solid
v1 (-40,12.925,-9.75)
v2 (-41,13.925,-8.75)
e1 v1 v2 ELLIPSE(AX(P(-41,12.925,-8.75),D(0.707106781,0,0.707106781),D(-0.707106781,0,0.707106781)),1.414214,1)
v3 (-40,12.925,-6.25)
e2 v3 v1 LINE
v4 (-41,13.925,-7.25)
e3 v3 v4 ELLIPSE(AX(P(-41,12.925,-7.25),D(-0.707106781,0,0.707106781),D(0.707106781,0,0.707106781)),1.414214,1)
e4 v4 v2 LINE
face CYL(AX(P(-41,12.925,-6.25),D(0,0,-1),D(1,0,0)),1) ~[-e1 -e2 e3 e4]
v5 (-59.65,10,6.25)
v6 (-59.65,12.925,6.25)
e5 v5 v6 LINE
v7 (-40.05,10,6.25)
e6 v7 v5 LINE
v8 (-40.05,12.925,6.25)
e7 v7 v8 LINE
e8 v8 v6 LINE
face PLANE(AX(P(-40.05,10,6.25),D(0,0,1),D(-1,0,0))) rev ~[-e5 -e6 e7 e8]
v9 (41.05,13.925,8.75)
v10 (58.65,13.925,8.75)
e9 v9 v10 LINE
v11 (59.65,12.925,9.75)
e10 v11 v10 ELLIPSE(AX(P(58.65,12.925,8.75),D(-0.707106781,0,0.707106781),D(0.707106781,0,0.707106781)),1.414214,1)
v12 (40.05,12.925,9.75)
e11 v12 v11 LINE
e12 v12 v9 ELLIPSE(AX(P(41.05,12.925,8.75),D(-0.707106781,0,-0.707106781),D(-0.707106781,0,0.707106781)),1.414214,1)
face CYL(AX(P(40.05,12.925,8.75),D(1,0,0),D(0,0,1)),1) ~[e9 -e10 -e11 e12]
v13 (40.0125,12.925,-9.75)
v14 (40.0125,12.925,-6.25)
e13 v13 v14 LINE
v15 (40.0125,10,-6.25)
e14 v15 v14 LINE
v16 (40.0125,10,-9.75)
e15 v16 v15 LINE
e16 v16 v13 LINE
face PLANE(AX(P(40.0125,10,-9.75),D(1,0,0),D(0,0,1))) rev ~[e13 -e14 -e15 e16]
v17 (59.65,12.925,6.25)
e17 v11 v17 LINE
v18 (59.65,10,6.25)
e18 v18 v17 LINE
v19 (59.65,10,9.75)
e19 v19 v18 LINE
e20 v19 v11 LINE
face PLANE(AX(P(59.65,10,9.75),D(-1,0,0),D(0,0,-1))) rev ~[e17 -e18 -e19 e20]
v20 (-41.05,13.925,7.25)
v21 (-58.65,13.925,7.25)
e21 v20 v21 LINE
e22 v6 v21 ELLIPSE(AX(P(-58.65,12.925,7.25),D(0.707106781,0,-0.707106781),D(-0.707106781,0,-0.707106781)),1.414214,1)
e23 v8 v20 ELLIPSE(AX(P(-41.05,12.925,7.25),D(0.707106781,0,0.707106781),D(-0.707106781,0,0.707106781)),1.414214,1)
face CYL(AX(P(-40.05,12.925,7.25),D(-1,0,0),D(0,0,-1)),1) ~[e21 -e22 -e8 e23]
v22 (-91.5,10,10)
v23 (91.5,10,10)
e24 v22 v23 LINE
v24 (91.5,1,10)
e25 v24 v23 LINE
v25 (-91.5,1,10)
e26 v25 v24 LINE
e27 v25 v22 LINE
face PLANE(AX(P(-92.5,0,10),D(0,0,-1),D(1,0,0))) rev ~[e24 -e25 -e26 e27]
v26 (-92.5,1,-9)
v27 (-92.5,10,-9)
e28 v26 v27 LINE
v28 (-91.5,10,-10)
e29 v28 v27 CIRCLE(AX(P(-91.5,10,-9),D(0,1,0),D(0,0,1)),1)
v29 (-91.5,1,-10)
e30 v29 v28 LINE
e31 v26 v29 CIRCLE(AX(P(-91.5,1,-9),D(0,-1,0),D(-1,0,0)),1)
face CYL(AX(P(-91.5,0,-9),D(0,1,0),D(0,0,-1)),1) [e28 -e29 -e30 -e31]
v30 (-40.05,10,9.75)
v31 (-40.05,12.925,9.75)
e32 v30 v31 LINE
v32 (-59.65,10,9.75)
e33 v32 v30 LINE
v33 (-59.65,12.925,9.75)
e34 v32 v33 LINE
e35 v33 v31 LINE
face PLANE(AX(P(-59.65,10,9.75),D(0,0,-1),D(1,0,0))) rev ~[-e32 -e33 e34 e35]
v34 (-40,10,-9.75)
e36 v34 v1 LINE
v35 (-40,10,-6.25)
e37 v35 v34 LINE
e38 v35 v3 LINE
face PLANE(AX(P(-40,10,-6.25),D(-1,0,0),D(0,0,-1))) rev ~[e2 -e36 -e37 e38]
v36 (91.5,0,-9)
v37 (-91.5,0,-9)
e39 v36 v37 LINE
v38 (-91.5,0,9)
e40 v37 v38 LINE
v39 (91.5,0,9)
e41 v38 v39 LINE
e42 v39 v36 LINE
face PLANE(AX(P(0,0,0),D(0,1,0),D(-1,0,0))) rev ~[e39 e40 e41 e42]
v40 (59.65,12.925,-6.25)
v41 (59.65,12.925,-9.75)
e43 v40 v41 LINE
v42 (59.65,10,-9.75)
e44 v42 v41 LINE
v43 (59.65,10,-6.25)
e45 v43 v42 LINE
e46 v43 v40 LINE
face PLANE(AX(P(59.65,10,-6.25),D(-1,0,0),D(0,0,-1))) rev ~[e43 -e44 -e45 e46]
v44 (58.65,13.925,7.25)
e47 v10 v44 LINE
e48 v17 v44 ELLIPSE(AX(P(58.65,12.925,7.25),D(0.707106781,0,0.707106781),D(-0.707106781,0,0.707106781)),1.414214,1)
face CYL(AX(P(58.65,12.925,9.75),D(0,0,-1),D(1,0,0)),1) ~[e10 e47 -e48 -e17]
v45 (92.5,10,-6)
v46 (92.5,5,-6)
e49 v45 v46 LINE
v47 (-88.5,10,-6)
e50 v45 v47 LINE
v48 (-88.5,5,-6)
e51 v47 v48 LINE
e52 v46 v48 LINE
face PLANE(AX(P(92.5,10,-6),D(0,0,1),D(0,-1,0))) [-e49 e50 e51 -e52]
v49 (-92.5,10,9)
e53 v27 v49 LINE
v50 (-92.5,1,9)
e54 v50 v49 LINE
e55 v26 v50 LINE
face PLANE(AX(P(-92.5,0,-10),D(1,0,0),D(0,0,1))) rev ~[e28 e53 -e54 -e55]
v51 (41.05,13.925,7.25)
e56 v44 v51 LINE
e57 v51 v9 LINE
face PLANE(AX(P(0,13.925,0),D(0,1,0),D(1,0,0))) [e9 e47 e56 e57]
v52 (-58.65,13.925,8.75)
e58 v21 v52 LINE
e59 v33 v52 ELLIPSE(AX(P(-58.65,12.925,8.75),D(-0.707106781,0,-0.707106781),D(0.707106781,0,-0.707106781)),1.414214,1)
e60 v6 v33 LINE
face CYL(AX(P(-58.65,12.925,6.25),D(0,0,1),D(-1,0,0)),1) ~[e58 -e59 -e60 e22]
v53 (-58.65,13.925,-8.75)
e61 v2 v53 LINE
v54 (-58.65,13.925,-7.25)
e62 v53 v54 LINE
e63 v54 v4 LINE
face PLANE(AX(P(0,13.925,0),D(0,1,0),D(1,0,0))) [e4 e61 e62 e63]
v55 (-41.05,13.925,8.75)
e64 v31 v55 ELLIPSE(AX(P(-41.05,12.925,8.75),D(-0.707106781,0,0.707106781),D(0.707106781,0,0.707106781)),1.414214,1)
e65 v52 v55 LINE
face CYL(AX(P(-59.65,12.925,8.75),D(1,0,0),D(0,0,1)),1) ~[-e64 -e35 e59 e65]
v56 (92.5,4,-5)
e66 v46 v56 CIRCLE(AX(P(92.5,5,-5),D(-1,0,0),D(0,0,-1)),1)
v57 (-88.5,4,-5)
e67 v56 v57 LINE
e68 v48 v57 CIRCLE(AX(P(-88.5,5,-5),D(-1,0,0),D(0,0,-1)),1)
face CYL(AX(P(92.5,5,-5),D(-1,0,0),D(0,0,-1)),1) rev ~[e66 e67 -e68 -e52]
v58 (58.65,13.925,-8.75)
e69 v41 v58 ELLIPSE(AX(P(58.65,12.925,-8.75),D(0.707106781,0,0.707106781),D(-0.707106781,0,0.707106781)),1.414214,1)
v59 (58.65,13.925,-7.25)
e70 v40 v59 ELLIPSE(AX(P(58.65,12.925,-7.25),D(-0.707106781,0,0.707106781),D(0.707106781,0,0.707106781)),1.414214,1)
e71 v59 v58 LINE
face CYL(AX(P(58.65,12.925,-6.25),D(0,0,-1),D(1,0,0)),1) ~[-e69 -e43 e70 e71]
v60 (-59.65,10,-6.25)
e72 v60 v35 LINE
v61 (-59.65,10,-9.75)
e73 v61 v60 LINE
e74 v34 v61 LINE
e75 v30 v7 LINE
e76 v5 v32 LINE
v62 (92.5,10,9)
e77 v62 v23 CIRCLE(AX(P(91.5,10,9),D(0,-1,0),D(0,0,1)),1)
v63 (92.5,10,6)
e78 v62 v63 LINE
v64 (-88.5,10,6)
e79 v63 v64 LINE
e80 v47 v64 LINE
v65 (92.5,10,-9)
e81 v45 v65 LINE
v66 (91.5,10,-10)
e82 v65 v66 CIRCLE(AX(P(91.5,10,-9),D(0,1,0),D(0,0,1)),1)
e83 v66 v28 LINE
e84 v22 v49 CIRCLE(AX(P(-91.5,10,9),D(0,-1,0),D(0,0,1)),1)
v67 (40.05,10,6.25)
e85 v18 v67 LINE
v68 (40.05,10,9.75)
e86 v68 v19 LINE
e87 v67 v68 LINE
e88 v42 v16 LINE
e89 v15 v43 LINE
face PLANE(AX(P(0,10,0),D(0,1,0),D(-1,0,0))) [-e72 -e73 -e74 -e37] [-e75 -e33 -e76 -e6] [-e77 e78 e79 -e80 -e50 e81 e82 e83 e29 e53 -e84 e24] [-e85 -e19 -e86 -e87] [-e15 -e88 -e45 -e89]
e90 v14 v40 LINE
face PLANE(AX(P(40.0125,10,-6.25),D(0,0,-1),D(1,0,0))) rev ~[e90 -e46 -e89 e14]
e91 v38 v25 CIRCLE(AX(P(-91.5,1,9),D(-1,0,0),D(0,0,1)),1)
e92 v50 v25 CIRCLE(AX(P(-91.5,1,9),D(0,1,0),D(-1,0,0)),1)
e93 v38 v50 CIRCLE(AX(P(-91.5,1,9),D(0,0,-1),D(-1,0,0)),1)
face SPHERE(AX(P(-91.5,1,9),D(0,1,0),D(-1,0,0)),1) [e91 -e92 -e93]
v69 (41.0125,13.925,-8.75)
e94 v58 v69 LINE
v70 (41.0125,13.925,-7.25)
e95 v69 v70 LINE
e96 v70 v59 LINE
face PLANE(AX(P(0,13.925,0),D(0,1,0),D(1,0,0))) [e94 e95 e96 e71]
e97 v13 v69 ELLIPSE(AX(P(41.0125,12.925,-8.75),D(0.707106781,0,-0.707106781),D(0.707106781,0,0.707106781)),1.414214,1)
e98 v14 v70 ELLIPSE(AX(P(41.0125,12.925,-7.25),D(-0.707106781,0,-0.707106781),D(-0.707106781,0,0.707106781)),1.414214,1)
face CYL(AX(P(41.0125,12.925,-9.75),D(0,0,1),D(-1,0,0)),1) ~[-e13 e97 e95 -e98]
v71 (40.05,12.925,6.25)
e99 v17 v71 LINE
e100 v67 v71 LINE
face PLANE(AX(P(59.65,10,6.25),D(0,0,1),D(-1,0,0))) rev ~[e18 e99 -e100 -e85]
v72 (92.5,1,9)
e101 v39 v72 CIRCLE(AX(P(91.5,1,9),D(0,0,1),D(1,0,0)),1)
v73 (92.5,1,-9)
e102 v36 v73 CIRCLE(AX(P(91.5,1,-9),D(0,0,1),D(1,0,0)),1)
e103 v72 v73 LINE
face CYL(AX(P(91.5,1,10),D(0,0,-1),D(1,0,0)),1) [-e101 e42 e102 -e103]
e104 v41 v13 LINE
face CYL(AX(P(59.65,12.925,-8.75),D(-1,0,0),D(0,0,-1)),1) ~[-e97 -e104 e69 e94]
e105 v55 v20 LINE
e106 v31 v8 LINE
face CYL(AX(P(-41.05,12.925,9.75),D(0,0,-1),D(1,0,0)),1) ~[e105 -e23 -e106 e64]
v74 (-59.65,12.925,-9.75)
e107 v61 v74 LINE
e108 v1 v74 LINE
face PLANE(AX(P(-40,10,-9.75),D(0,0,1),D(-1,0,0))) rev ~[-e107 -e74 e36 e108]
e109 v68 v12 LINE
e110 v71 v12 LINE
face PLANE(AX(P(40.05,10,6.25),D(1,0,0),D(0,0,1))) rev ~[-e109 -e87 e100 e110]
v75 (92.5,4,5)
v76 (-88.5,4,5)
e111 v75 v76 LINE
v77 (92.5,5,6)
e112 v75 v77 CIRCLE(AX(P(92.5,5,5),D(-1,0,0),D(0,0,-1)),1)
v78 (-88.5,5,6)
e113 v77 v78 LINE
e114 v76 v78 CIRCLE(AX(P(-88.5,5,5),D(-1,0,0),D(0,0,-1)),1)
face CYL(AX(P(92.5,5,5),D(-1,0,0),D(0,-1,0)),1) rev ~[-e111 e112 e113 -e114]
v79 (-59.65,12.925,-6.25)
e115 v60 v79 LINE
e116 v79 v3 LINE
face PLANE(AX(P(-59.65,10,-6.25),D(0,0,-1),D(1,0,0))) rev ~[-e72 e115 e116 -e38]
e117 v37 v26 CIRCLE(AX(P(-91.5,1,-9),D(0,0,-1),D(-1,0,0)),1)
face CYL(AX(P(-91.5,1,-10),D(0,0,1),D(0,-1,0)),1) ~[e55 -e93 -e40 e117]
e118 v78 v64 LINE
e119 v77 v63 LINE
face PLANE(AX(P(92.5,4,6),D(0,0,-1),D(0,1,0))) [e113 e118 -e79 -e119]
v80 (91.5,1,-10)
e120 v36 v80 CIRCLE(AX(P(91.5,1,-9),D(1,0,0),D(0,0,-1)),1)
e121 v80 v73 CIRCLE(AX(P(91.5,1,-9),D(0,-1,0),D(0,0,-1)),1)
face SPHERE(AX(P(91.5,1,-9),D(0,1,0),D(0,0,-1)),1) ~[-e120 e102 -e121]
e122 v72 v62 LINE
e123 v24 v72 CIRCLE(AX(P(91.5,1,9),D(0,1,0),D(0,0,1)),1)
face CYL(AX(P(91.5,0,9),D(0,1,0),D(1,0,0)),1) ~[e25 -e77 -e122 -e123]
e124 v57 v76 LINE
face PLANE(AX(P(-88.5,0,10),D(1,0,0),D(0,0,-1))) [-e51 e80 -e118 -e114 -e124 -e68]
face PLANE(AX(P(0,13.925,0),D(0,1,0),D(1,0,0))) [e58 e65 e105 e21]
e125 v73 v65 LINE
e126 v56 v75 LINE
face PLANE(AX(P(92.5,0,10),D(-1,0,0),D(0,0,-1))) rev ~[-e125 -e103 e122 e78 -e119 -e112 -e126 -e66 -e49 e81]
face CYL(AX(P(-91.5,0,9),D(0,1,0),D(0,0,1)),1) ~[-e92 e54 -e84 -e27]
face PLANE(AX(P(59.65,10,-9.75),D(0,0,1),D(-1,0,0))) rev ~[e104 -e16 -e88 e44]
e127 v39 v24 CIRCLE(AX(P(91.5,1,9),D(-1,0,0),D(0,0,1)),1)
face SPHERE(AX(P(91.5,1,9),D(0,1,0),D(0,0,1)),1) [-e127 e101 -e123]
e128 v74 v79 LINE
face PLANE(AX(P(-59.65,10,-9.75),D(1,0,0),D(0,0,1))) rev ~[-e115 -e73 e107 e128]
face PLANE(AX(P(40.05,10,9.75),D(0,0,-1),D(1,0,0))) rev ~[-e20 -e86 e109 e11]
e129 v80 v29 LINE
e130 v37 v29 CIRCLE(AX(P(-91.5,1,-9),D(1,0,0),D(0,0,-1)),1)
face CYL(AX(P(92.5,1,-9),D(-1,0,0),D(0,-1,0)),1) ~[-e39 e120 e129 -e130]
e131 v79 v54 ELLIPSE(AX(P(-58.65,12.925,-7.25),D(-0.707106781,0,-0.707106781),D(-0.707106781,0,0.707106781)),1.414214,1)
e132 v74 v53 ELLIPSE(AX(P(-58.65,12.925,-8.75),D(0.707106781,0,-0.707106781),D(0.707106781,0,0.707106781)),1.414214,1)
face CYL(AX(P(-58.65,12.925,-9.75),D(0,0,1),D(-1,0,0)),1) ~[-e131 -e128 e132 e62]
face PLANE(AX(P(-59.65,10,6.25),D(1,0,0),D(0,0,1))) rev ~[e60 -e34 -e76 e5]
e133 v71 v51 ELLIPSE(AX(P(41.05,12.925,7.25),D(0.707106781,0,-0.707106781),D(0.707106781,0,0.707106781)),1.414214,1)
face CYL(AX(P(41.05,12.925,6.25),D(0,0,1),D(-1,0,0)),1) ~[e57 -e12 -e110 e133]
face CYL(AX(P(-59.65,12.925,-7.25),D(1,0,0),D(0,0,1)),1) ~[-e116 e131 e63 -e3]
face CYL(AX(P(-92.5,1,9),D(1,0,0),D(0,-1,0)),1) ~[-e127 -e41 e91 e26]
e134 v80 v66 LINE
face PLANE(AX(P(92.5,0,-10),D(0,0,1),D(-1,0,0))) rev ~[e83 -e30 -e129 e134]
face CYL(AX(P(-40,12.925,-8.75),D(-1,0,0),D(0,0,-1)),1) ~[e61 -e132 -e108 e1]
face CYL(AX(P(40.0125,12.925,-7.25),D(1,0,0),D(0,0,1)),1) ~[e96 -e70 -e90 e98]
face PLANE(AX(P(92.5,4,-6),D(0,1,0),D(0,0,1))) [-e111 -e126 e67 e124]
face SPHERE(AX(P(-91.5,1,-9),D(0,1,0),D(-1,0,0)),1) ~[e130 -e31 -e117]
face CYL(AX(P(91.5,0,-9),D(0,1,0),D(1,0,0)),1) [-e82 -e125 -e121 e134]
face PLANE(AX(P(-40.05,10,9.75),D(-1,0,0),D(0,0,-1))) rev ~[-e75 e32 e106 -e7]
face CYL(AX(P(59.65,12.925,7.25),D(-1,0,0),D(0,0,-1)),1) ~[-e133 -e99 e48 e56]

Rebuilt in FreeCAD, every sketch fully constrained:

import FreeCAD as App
import Part
import Sketcher
from FreeCAD import Vector
Q = App.Units.Quantity


def edges_at(feature, points):
    """Names of the edges that pass closest to the given points."""
    edges = feature.Shape.Edges
    near = lambda p: min(range(len(edges)), key=lambda i: edges[i].distToShape(Part.Vertex(*p))[0])
    return sorted({f"Edge{near(p) + 1}" for p in points})

doc = App.newDocument("Part")
params = doc.addObject("Spreadsheet::Sheet", "Params")
for row, (alias, value) in enumerate([
    ("sketch1_width", "185 mm"),
    ("sketch1_height", "20 mm"),
    ("pad1_length", "10 mm"),
    ("sketch2_width", "6 mm"),
    ("sketch2_height", "12 mm"),
    ("pocket1_length", "181 mm"),
    ("sketch3_width", "19.6 mm"),
    ("sketch3_height", "3.5 mm"),
    ("sketch3_width2", "19.65 mm"),
    ("pad2_length", "3.925 mm"),
    ("fillet_radius", "1 mm"),
], start=1):
    params.set(f"A{row}", alias)
    params.set(f"B{row}", "=" + value)
    params.setAlias(f"B{row}", alias)

body = doc.addObject("PartDesign::Body", "Body")

sketch1 = body.newObject("Sketcher::SketchObject", "Sketch")
sketch1.AttachmentSupport = (doc.getObject("XZ_Plane"), [""])
sketch1.MapMode = "FlatFace"
sketch1.addGeometry([
    Part.LineSegment(Vector(92, 10, 0), Vector(92, -10, 0)),
    Part.LineSegment(Vector(92, -10, 0), Vector(-92, -10, 0)),
    Part.LineSegment(Vector(-92, -10, 0), Vector(-92, 10, 0)),
    Part.LineSegment(Vector(-92, 10, 0), Vector(92, 10, 0)),
], False)
sketch1.addConstraint([
    Sketcher.Constraint("Coincident", 0, 2, 1, 1),
    Sketcher.Constraint("Coincident", 1, 2, 2, 1),
    Sketcher.Constraint("Coincident", 2, 2, 3, 1),
    Sketcher.Constraint("Coincident", 3, 2, 0, 1),
    Sketcher.Constraint("Vertical", 0),
    Sketcher.Constraint("Horizontal", 1),
    Sketcher.Constraint("Vertical", 2),
    Sketcher.Constraint("Horizontal", 3),
    Sketcher.Constraint("Symmetric", 0, 2, 2, 2, -1, 1),
    Sketcher.Constraint("DistanceX", 1, 2, 1, 1, Q("185 mm")),
    Sketcher.Constraint("DistanceY", 0, 2, 0, 1, Q("20 mm")),
])
sketch1.setExpression("Constraints[9]", "Params.sketch1_width")
sketch1.setExpression("Constraints[10]", "Params.sketch1_height")
pad1 = body.newObject("PartDesign::Pad", "Pad")
pad1.Profile = sketch1
pad1.setExpression("Length", "Params.pad1_length")
pad1.Reversed = True

sketch2 = body.newObject("Sketcher::SketchObject", "Sketch001")
sketch2.AttachmentSupport = (doc.getObject("YZ_Plane"), [""])
sketch2.MapMode = "FlatFace"
sketch2.AttachmentOffset = App.Placement(Vector(0, 0, 92.5), App.Rotation())
sketch2.addGeometry([
    Part.LineSegment(Vector(4, -6, 0), Vector(10, -6, 0)),
    Part.LineSegment(Vector(10, -6, 0), Vector(10, 6, 0)),
    Part.LineSegment(Vector(10, 6, 0), Vector(4, 6, 0)),
    Part.LineSegment(Vector(4, 6, 0), Vector(4, -6, 0)),
], False)
sketch2.addConstraint([
    Sketcher.Constraint("Coincident", 0, 2, 1, 1),
    Sketcher.Constraint("Coincident", 1, 2, 2, 1),
    Sketcher.Constraint("Coincident", 2, 2, 3, 1),
    Sketcher.Constraint("Coincident", 3, 2, 0, 1),
    Sketcher.Constraint("Horizontal", 0),
    Sketcher.Constraint("Vertical", 1),
    Sketcher.Constraint("Horizontal", 2),
    Sketcher.Constraint("Vertical", 3),
    Sketcher.Constraint("DistanceX", -1, 1, 2, 2, Q("4 mm")),
    Sketcher.Constraint("DistanceX", 0, 1, 0, 2, Q("6 mm")),
    Sketcher.Constraint("DistanceY", 1, 1, 1, 2, Q("12 mm")),
    Sketcher.Constraint("DistanceY", 0, 2, -1, 1, Q("6 mm")),
])
sketch2.setExpression("Constraints[9]", "Params.sketch2_width")
sketch2.setExpression("Constraints[10]", "Params.sketch2_height")
pocket1 = body.newObject("PartDesign::Pocket", "Pocket")
pocket1.Profile = sketch2
pocket1.setExpression("Length", "Params.pocket1_length")

sketch3 = body.newObject("Sketcher::SketchObject", "Sketch002")
sketch3.AttachmentSupport = (doc.getObject("XZ_Plane"), [""])
sketch3.MapMode = "FlatFace"
sketch3.AttachmentOffset = App.Placement(Vector(0, 0, -10), App.Rotation())
sketch3.addGeometry([
    Part.LineSegment(Vector(-59.6, 6.2, 0), Vector(-59.6, 9.8, 0)),
    Part.LineSegment(Vector(-59.6, 9.8, 0), Vector(-40, 9.8, 0)),
    Part.LineSegment(Vector(-40, 9.8, 0), Vector(-40, 6.2, 0)),
    Part.LineSegment(Vector(-40, 6.2, 0), Vector(-59.6, 6.2, 0)),
    Part.LineSegment(Vector(-59.6, -9.8, 0), Vector(-59.6, -6.2, 0)),
    Part.LineSegment(Vector(-59.6, -6.2, 0), Vector(-40, -6.2, 0)),
    Part.LineSegment(Vector(-40, -6.2, 0), Vector(-40, -9.8, 0)),
    Part.LineSegment(Vector(-40, -9.8, 0), Vector(-59.6, -9.8, 0)),
    Part.LineSegment(Vector(40, 6.2, 0), Vector(40, 9.8, 0)),
    Part.LineSegment(Vector(40, 9.8, 0), Vector(59.6, 9.8, 0)),
    Part.LineSegment(Vector(59.6, 9.8, 0), Vector(59.6, 6.2, 0)),
    Part.LineSegment(Vector(59.6, 6.2, 0), Vector(40, 6.2, 0)),
    Part.LineSegment(Vector(40, -9.8, 0), Vector(40, -6.2, 0)),
    Part.LineSegment(Vector(40, -6.2, 0), Vector(59.6, -6.2, 0)),
    Part.LineSegment(Vector(59.6, -6.2, 0), Vector(59.6, -9.8, 0)),
    Part.LineSegment(Vector(59.6, -9.8, 0), Vector(40, -9.8, 0)),
], False)
sketch3.addConstraint([
    Sketcher.Constraint("Coincident", 0, 2, 1, 1),
    Sketcher.Constraint("Coincident", 1, 2, 2, 1),
    Sketcher.Constraint("Coincident", 2, 2, 3, 1),
    Sketcher.Constraint("Coincident", 3, 2, 0, 1),
    Sketcher.Constraint("Coincident", 4, 2, 5, 1),
    Sketcher.Constraint("Coincident", 5, 2, 6, 1),
    Sketcher.Constraint("Coincident", 6, 2, 7, 1),
    Sketcher.Constraint("Coincident", 7, 2, 4, 1),
    Sketcher.Constraint("Coincident", 8, 2, 9, 1),
    Sketcher.Constraint("Coincident", 9, 2, 10, 1),
    Sketcher.Constraint("Coincident", 10, 2, 11, 1),
    Sketcher.Constraint("Coincident", 11, 2, 8, 1),
    Sketcher.Constraint("Coincident", 12, 2, 13, 1),
    Sketcher.Constraint("Coincident", 13, 2, 14, 1),
    Sketcher.Constraint("Coincident", 14, 2, 15, 1),
    Sketcher.Constraint("Coincident", 15, 2, 12, 1),
    Sketcher.Constraint("Vertical", 0),
    Sketcher.Constraint("Horizontal", 1),
    Sketcher.Constraint("Vertical", 2),
    Sketcher.Constraint("Horizontal", 3),
    Sketcher.Constraint("Vertical", 4),
    Sketcher.Constraint("Horizontal", 5),
    Sketcher.Constraint("Vertical", 6),
    Sketcher.Constraint("Horizontal", 7),
    Sketcher.Constraint("Vertical", 8),
    Sketcher.Constraint("Horizontal", 9),
    Sketcher.Constraint("Vertical", 10),
    Sketcher.Constraint("Horizontal", 11),
    Sketcher.Constraint("Vertical", 12),
    Sketcher.Constraint("Horizontal", 13),
    Sketcher.Constraint("Vertical", 14),
    Sketcher.Constraint("Horizontal", 15),
    Sketcher.Constraint("Symmetric", 7, 2, 9, 2, -1, 1),
    Sketcher.Constraint("Symmetric", 3, 2, 13, 2, -1, 1),
    Sketcher.Constraint("Symmetric", 1, 2, 8, 2, -2),
    Sketcher.Constraint("Symmetric", 3, 2, 10, 2, -2),
    Sketcher.Constraint("Horizontal", 5, 2, 12, 2),
    Sketcher.Constraint("Horizontal", 7, 2, 14, 2),
    Sketcher.Constraint("DistanceX", 1, 1, 1, 2, Q("19.6 mm")),
    Sketcher.Constraint("DistanceY", 0, 1, 0, 2, Q("3.5 mm")),
    Sketcher.Constraint("DistanceX", 5, 2, -1, 1, Q("40 mm")),
    Sketcher.Constraint("DistanceY", 4, 2, 0, 2, Q("16 mm")),
    Sketcher.Constraint("DistanceX", 5, 1, 5, 2, Q("19.65 mm")),
    Sketcher.Constraint("DistanceX", 13, 1, 13, 2, Q("19.6375 mm")),
])
sketch3.setExpression("Constraints[38]", "Params.sketch3_width")
sketch3.setExpression("Constraints[39]", "Params.sketch3_height")
sketch3.setExpression("Constraints[42]", "Params.sketch3_width2")
pad2 = body.newObject("PartDesign::Pad", "Pad001")
pad2.Profile = sketch3
pad2.setExpression("Length", "Params.pad2_length")
pad2.Reversed = True
doc.recompute()

fillet = body.newObject("PartDesign::Fillet", "Fillet")
fillet.Base = (pad2, edges_at(pad2, [
    (-49.85, 13.925, 9.75),
    (-49.85, 13.925, 6.25),
    (-59.65, 13.925, 8),
    (-40.05, 13.925, 8),
    (-59.65, 13.925, -8),
    (-49.825, 13.925, -6.25),
    (-49.825, 13.925, -9.75),
    (-40, 13.925, -8),
    (40.013, 13.925, -8),
    (49.831, 13.925, -9.75),
    (49.831, 13.925, -6.25),
    (59.65, 13.925, -8),
    (40.05, 13.925, 8),
    (49.85, 13.925, 9.75),
    (49.85, 13.925, 6.25),
    (59.65, 13.925, 8),
    (92.5, 5, 10),
    (92.5, 5, -10),
    (-92.5, 5, -10),
    (-92.5, 5, 10),
    (-92.5, 0, 0),
    (0, 0, 10),
    (0, 0, -10),
    (92.5, 0, 0),
    (2, 4, -6),
    (2, 4, 6),
]))
fillet.setExpression("Radius", "Params.fillet_radius")

doc.recompute()
